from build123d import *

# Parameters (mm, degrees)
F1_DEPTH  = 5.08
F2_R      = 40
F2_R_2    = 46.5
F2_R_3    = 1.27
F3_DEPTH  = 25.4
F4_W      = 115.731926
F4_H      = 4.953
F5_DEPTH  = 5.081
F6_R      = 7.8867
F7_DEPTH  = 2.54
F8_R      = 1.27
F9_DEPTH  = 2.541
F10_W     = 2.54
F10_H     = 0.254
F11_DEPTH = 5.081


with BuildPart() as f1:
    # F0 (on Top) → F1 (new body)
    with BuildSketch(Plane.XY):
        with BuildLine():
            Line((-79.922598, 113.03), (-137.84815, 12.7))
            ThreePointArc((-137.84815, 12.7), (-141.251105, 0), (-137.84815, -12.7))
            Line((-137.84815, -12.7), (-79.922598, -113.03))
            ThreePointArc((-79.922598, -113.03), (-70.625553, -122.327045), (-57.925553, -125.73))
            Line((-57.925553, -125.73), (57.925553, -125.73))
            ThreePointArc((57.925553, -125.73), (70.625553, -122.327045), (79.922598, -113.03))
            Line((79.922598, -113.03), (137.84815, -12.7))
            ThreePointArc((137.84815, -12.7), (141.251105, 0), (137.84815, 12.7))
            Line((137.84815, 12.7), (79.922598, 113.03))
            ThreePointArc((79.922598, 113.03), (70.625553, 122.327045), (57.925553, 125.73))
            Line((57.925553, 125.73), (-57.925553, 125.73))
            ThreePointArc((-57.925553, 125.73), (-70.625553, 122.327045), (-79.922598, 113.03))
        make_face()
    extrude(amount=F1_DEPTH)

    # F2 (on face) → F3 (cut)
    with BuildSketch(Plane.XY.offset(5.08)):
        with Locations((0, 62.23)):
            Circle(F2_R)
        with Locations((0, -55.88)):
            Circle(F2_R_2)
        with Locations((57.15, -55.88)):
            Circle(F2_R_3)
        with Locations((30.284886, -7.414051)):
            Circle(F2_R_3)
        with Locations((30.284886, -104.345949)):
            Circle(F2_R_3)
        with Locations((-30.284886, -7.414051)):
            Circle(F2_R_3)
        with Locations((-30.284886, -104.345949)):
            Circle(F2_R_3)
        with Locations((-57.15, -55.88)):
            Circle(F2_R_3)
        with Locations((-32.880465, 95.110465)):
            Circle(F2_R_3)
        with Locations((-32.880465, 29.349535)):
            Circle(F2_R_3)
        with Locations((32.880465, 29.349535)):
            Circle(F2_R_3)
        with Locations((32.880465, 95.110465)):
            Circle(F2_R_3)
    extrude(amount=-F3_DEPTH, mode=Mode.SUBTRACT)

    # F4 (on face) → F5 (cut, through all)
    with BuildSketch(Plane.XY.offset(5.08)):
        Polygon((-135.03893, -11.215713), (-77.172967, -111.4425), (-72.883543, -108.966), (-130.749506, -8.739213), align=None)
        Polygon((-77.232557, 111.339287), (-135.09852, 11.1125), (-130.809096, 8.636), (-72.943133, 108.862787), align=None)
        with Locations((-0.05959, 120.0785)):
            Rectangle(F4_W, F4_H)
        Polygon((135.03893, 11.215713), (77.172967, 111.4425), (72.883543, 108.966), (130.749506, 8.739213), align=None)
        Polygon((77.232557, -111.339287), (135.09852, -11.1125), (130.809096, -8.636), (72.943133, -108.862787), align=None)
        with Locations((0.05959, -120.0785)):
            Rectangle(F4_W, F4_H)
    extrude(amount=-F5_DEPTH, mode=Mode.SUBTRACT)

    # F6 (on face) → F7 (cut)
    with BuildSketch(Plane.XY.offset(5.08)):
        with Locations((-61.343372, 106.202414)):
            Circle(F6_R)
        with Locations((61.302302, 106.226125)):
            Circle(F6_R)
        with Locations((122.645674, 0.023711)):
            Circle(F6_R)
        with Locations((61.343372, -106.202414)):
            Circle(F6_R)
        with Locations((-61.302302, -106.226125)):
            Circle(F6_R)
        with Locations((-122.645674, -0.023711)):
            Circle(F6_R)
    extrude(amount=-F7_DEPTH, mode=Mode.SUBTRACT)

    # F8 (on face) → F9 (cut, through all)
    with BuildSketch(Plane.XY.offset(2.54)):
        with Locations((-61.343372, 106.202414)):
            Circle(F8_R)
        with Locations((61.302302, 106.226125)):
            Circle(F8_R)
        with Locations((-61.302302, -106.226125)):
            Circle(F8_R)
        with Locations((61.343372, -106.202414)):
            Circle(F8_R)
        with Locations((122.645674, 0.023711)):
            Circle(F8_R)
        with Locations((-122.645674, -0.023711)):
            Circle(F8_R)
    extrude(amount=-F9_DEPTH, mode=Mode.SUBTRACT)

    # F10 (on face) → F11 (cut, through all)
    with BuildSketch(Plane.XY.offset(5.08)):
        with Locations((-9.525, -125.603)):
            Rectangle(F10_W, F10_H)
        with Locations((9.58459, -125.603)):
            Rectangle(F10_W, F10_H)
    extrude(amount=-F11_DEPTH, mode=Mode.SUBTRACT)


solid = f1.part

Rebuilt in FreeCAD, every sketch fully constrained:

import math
import FreeCAD as App
import Part
import Sketcher
Q = App.Units.Quantity


def add_polygon(sketch, points):
    """Adds a closed chain of lines whose ends are joined by coincident constraints."""
    first, n = sketch.GeometryCount, len(points)
    for a, b in zip(points, points[1:] + points[:1]):
        sketch.addGeometry(Part.LineSegment(App.Vector(*a, 0), App.Vector(*b, 0)), False)
    for i in range(n):
        sketch.addConstraint(Sketcher.Constraint("Coincident", first + i, 2, first + (i + 1) % n, 1))

doc = App.newDocument("Part")
body = doc.addObject("PartDesign::Body", "Body")

sketch1 = doc.addObject("Sketcher::SketchObject", "Sketch")
body.addObject(sketch1)
sketch1.AttachmentSupport = (doc.XY_Plane, [""])
sketch1.MapMode = "FlatFace"
sketch1.addGeometry(Part.LineSegment(App.Vector(-80, 113, 0), App.Vector(-138, 13, 0)), False)
sketch1.addGeometry(Part.ArcOfCircle(Part.Circle(App.Vector(-116, 0, 0), App.Vector(0, 0, 1), 25), math.radians(150), math.radians(210)), False)
sketch1.addGeometry(Part.LineSegment(App.Vector(-138, -13, 0), App.Vector(-80, -113, 0)), False)
sketch1.addGeometry(Part.ArcOfCircle(Part.Circle(App.Vector(-58, -100, 0), App.Vector(0, 0, 1), 25), math.radians(-150), math.radians(-90)), False)
sketch1.addGeometry(Part.LineSegment(App.Vector(-58, -126, 0), App.Vector(58, -126, 0)), False)
sketch1.addGeometry(Part.ArcOfCircle(Part.Circle(App.Vector(58, -100, 0), App.Vector(0, 0, 1), 25), math.radians(-90), math.radians(-30)), False)
sketch1.addGeometry(Part.LineSegment(App.Vector(80, -113, 0), App.Vector(138, -13, 0)), False)
sketch1.addGeometry(Part.ArcOfCircle(Part.Circle(App.Vector(116, 0, 0), App.Vector(0, 0, 1), 25), math.radians(-30), math.radians(30)), False)
sketch1.addGeometry(Part.LineSegment(App.Vector(138, 13, 0), App.Vector(80, 113, 0)), False)
sketch1.addGeometry(Part.ArcOfCircle(Part.Circle(App.Vector(58, 100, 0), App.Vector(0, 0, 1), 25), math.radians(30), math.radians(90)), False)
sketch1.addGeometry(Part.LineSegment(App.Vector(58, 126, 0), App.Vector(-58, 126, 0)), False)
sketch1.addGeometry(Part.ArcOfCircle(Part.Circle(App.Vector(-58, 100, 0), App.Vector(0, 0, 1), 25), math.radians(90), math.radians(150)), False)
sketch1.addConstraint(Sketcher.Constraint("Tangent", 0, 2, 1, 1))
sketch1.addConstraint(Sketcher.Constraint("Tangent", 1, 2, 2, 1))
sketch1.addConstraint(Sketcher.Constraint("Tangent", 2, 2, 3, 1))
sketch1.addConstraint(Sketcher.Constraint("Tangent", 3, 2, 4, 1))
sketch1.addConstraint(Sketcher.Constraint("Tangent", 4, 2, 5, 1))
sketch1.addConstraint(Sketcher.Constraint("Tangent", 5, 2, 6, 1))
sketch1.addConstraint(Sketcher.Constraint("Tangent", 6, 2, 7, 1))
sketch1.addConstraint(Sketcher.Constraint("Tangent", 7, 2, 8, 1))
sketch1.addConstraint(Sketcher.Constraint("Tangent", 8, 2, 9, 1))
sketch1.addConstraint(Sketcher.Constraint("Tangent", 9, 2, 10, 1))
sketch1.addConstraint(Sketcher.Constraint("Tangent", 10, 2, 11, 1))
sketch1.addConstraint(Sketcher.Constraint("Tangent", 11, 2, 0, 1))
sketch1.addConstraint(Sketcher.Constraint("Horizontal", 4))
sketch1.addConstraint(Sketcher.Constraint("Horizontal", 10))
sketch1.addConstraint(Sketcher.Constraint("Equal", 3, 5))
sketch1.addConstraint(Sketcher.Constraint("Equal", 1, 7))
sketch1.addConstraint(Sketcher.Constraint("Equal", 5, 9))
sketch1.addConstraint(Sketcher.Constraint("Equal", 9, 11))
sketch1.addConstraint(Sketcher.Constraint("Symmetric", 1, 3, 7, 3, -1, 1))
sketch1.addConstraint(Sketcher.Constraint("Symmetric", 3, 3, 9, 3, -1, 1))
sketch1.addConstraint(Sketcher.Constraint("Symmetric", 2, 2, 5, 2, -2))
sketch1.addConstraint(Sketcher.Constraint("Parallel", 0, 6))
sketch1.addConstraint(Sketcher.Constraint("Radius", 1, Q("0.9999999 in")))
sketch1.addConstraint(Sketcher.Constraint("Radius", 3, Q("1 in")))
sketch1.addConstraint(Sketcher.Constraint("Angle", 0, Q("-120 deg")))
sketch1.addConstraint(Sketcher.Constraint("DistanceY", 5, 3, 9, 3, Q("7.9 in")))
sketch1.addConstraint(Sketcher.Constraint("DistanceX", 4, 1, 4, 2, 115.851106))
pad1 = doc.addObject("PartDesign::Pad", "Pad")
body.addObject(pad1)
pad1.Profile = sketch1
pad1.Length = Q("0.2 in")

sketch2 = doc.addObject("Sketcher::SketchObject", "Sketch001")
body.addObject(sketch2)
sketch2.AttachmentSupport = (doc.XY_Plane, [""])
sketch2.MapMode = "FlatFace"
sketch2.AttachmentOffset = App.Placement(App.Vector(0, 0, 0.2 * 25.4), App.Rotation())
sketch2.addGeometry(Part.Circle(App.Vector(0, 62.2, 0), App.Vector(0, 0, 1), 40), False)
sketch2.addGeometry(Part.Circle(App.Vector(0, -55.9, 0), App.Vector(0, 0, 1), 46.5), False)
sketch2.addGeometry(Part.Circle(App.Vector(57.1, -55.9, 0), App.Vector(0, 0, 1), 1.3), False)
sketch2.addGeometry(Part.Circle(App.Vector(30.3, -7.4, 0), App.Vector(0, 0, 1), 1.3), False)
sketch2.addGeometry(Part.Circle(App.Vector(30.3, -104.3, 0), App.Vector(0, 0, 1), 1.3), False)
sketch2.addGeometry(Part.Circle(App.Vector(-30.3, -7.4, 0), App.Vector(0, 0, 1), 1.3), False)
sketch2.addGeometry(Part.Circle(App.Vector(-30.3, -104.3, 0), App.Vector(0, 0, 1), 1.3), False)
sketch2.addGeometry(Part.Circle(App.Vector(-57.1, -55.9, 0), App.Vector(0, 0, 1), 1.3), False)
sketch2.addGeometry(Part.Circle(App.Vector(-32.9, 95.1, 0), App.Vector(0, 0, 1), 1.3), False)
sketch2.addGeometry(Part.Circle(App.Vector(-32.9, 29.3, 0), App.Vector(0, 0, 1), 1.3), False)
sketch2.addGeometry(Part.Circle(App.Vector(32.9, 29.3, 0), App.Vector(0, 0, 1), 1.3), False)
sketch2.addGeometry(Part.Circle(App.Vector(32.9, 95.1, 0), App.Vector(0, 0, 1), 1.3), False)
sketch2.addConstraint(Sketcher.Constraint("Equal", 2, 3))
sketch2.addConstraint(Sketcher.Constraint("Equal", 3, 4))
sketch2.addConstraint(Sketcher.Constraint("Equal", 4, 5))
sketch2.addConstraint(Sketcher.Constraint("Equal", 5, 6))
sketch2.addConstraint(Sketcher.Constraint("Equal", 6, 7))
sketch2.addConstraint(Sketcher.Constraint("Equal", 7, 8))
sketch2.addConstraint(Sketcher.Constraint("Equal", 8, 9))
sketch2.addConstraint(Sketcher.Constraint("Equal", 9, 10))
sketch2.addConstraint(Sketcher.Constraint("Equal", 10, 11))
sketch2.addConstraint(Sketcher.Constraint("Symmetric", 3, 3, 5, 3, -2))
sketch2.addConstraint(Sketcher.Constraint("Symmetric", 4, 3, 6, 3, -2))
sketch2.addConstraint(Sketcher.Constraint("Symmetric", 2, 3, 7, 3, -2))
sketch2.addConstraint(Sketcher.Constraint("Symmetric", 9, 3, 10, 3, -2))
sketch2.addConstraint(Sketcher.Constraint("Symmetric", 8, 3, 11, 3, -2))
sketch2.addConstraint(Sketcher.Constraint("PointOnObject", 0, 3, -2))
sketch2.addConstraint(Sketcher.Constraint("PointOnObject", 1, 3, -2))
sketch2.addConstraint(Sketcher.Constraint("Horizontal", 1, 3, 2, 3))
sketch2.addConstraint(Sketcher.Constraint("Vertical", 3, 3, 4, 3))
sketch2.addConstraint(Sketcher.Constraint("Vertical", 8, 3, 9, 3))
sketch2.addConstraint(Sketcher.Constraint("Diameter", 2, Q("0.1 in")))
sketch2.addConstraint(Sketcher.Constraint("DistanceY", 1, 3, -1, 1, Q("2.2 in")))
sketch2.addConstraint(Sketcher.Constraint("Diameter", 0, 80.0))
sketch2.addConstraint(Sketcher.Constraint("Diameter", 1, 93.0))
sketch2.addConstraint(Sketcher.Constraint("DistanceY", -1, 1, 0, 3, Q("2.45 in")))
sketch2.addConstraint(Sketcher.Constraint("DistanceX", -1, 1, 2, 3, Q("2.25 in")))
sketch2.addConstraint(Sketcher.Constraint("DistanceY", 4, 3, 3, 3, 96.931898))
sketch2.addConstraint(Sketcher.Constraint("DistanceY", 3, 3, -1, 1, 7.414051))
sketch2.addConstraint(Sketcher.Constraint("DistanceX", 8, 3, 5, 3, 2.595579))
sketch2.addConstraint(Sketcher.Constraint("DistanceX", 8, 3, 3, 3, 63.165351))
sketch2.addConstraint(Sketcher.Constraint("DistanceY", 9, 3, 8, 3, 65.76093))
sketch2.addConstraint(Sketcher.Constraint("DistanceY", -1, 1, 8, 3, 95.110465))
pocket1 = doc.addObject("PartDesign::Pocket", "Pocket")
body.addObject(pocket1)
pocket1.Profile = sketch2
pocket1.Length = Q("1 in")

sketch3 = doc.addObject("Sketcher::SketchObject", "Sketch002")
body.addObject(sketch3)
sketch3.AttachmentSupport = (doc.XY_Plane, [""])
sketch3.MapMode = "FlatFace"
sketch3.AttachmentOffset = App.Placement(App.Vector(0, 0, 0.2 * 25.4), App.Rotation())
add_polygon(sketch3, [(-135, -11.2), (-77.2, -111.4), (-72.9, -109), (-130.7, -8.7)])
add_polygon(sketch3, [(-77.2, 111.3), (-135.1, 11.1), (-130.8, 8.6), (-72.9, 108.9)])
add_polygon(sketch3, [(-57.9, 122.6), (-57.9, 117.6), (57.8, 117.6), (57.8, 122.6)])
add_polygon(sketch3, [(135, 11.2), (77.2, 111.4), (72.9, 109), (130.7, 8.7)])
add_polygon(sketch3, [(77.2, -111.3), (135.1, -11.1), (130.8, -8.6), (72.9, -108.9)])
add_polygon(sketch3, [(-57.8, -117.6), (-57.8, -122.6), (57.9, -122.6), (57.9, -117.6)])
sketch3.addConstraint(Sketcher.Constraint("Vertical", 8))
sketch3.addConstraint(Sketcher.Constraint("Horizontal", 9))
sketch3.addConstraint(Sketcher.Constraint("Vertical", 10))
sketch3.addConstraint(Sketcher.Constraint("Horizontal", 11))
sketch3.addConstraint(Sketcher.Constraint("Vertical", 20))
sketch3.addConstraint(Sketcher.Constraint("Horizontal", 21))
sketch3.addConstraint(Sketcher.Constraint("Vertical", 22))
sketch3.addConstraint(Sketcher.Constraint("Horizontal", 23))
sketch3.addConstraint(Sketcher.Constraint("Symmetric", 0, 2, 12, 2, -1, 1))
sketch3.addConstraint(Sketcher.Constraint("Symmetric", 1, 2, 13, 2, -1, 1))
sketch3.addConstraint(Sketcher.Constraint("Symmetric", 2, 2, 14, 2, -1, 1))
sketch3.addConstraint(Sketcher.Constraint("Symmetric", 3, 2, 15, 2, -1, 1))
sketch3.addConstraint(Sketcher.Constraint("Symmetric", 4, 2, 16, 2, -1, 1))
sketch3.addConstraint(Sketcher.Constraint("Symmetric", 5, 2, 17, 2, -1, 1))
sketch3.addConstraint(Sketcher.Constraint("Symmetric", 6, 2, 18, 2, -1, 1))
sketch3.addConstraint(Sketcher.Constraint("Symmetric", 7, 2, 19, 2, -1, 1))
sketch3.addConstraint(Sketcher.Constraint("Symmetric", 10, 2, 20, 2, -1, 1))
sketch3.addConstraint(Sketcher.Constraint("Symmetric", 8, 2, 22, 2, -1, 1))
sketch3.addConstraint(Sketcher.Constraint("Perpendicular", 0, 1))
sketch3.addConstraint(Sketcher.Constraint("Perpendicular", 1, 2))
sketch3.addConstraint(Sketcher.Constraint("Perpendicular", 2, 3))
sketch3.addConstraint(Sketcher.Constraint("Perpendicular", 4, 5))
sketch3.addConstraint(Sketcher.Constraint("Perpendicular", 5, 6))
sketch3.addConstraint(Sketcher.Constraint("Perpendicular", 6, 7))
sketch3.addConstraint(Sketcher.Constraint("Equal", 2, 4))
sketch3.addConstraint(Sketcher.Constraint("Equal", 3, 5))
sketch3.addConstraint(Sketcher.Constraint("Angle", 0, Q("-60 deg")))
sketch3.addConstraint(Sketcher.Constraint("Angle", 4, Q("-120 deg")))
sketch3.addConstraint(Sketcher.Constraint("DistanceY", 8, 2, 8, 1, Q("0.195 in")))
sketch3.addConstraint(Sketcher.Constraint("DistanceY", 1, 2, -1, 1, Q("4.29 in")))
sketch3.addConstraint(Sketcher.Constraint("DistanceY", -1, 1, 5, 2, Q("0.34 in")))
sketch3.addConstraint(Sketcher.Constraint("DistanceY", -1, 1, 8, 2, Q("4.63 in")))
sketch3.addConstraint(Sketcher.Constraint("Distance", 1, Q("0.195 in")))
sketch3.addConstraint(Sketcher.Constraint("DistanceX", 6, 2, 12, 2, 150.1161))
sketch3.addConstraint(Sketcher.Constraint("DistanceX", 9, 1, 9, 2, 115.731926))
sketch3.addConstraint(Sketcher.Constraint("DistanceX", 3, 2, -1, 1, 135.03893))
sketch3.addConstraint(Sketcher.Constraint("DistanceX", 4, 2, -1, 1, 135.09852))
sketch3.addConstraint(Sketcher.Constraint("DistanceX", 6, 2, 8, 2, 15.01758))
pocket2 = doc.addObject("PartDesign::Pocket", "Pocket001")
body.addObject(pocket2)
pocket2.Profile = sketch3
pocket2.Type = "ThroughAll"

sketch4 = doc.addObject("Sketcher::SketchObject", "Sketch003")
body.addObject(sketch4)
sketch4.AttachmentSupport = (doc.XY_Plane, [""])
sketch4.MapMode = "FlatFace"
sketch4.AttachmentOffset = App.Placement(App.Vector(0, 0, 0.2 * 25.4), App.Rotation())
sketch4.addGeometry(Part.Circle(App.Vector(-61, 106, 0), App.Vector(0, 0, 1), 8), False)
sketch4.addGeometry(Part.Circle(App.Vector(61, 106, 0), App.Vector(0, 0, 1), 8), False)
sketch4.addGeometry(Part.Circle(App.Vector(123, 0, 0), App.Vector(0, 0, 1), 8), False)
sketch4.addGeometry(Part.Circle(App.Vector(61, -106, 0), App.Vector(0, 0, 1), 8), False)
sketch4.addGeometry(Part.Circle(App.Vector(-61, -106, 0), App.Vector(0, 0, 1), 8), False)
sketch4.addGeometry(Part.Circle(App.Vector(-123, 0, 0), App.Vector(0, 0, 1), 8), False)
sketch4.addConstraint(Sketcher.Constraint("Equal", 0, 1))
sketch4.addConstraint(Sketcher.Constraint("Equal", 1, 2))
sketch4.addConstraint(Sketcher.Constraint("Equal", 2, 3))
sketch4.addConstraint(Sketcher.Constraint("Equal", 3, 4))
sketch4.addConstraint(Sketcher.Constraint("Equal", 4, 5))
sketch4.addConstraint(Sketcher.Constraint("Symmetric", 0, 3, 3, 3, -1, 1))
sketch4.addConstraint(Sketcher.Constraint("Symmetric", 1, 3, 4, 3, -1, 1))
sketch4.addConstraint(Sketcher.Constraint("Symmetric", 2, 3, 5, 3, -1, 1))
sketch4.addConstraint(Sketcher.Constraint("Diameter", 0, Q("0.621 in")))
sketch4.addConstraint(Sketcher.Constraint("DistanceX", -1, 1, 1, 3, 61.302302))
sketch4.addConstraint(Sketcher.Constraint("DistanceX", 3, 3, 2, 3, 61.302302))
sketch4.addConstraint(Sketcher.Constraint("DistanceY", -1, 1, 2, 3, 0.023711))
sketch4.addConstraint(Sketcher.Constraint("DistanceY", 0, 3, 1, 3, 0.023711))
sketch4.addConstraint(Sketcher.Constraint("DistanceX", 1, 3, 3, 3, 0.04107))
sketch4.addConstraint(Sketcher.Constraint("DistanceY", 3, 3, 1, 3, 212.428539))
pocket3 = doc.addObject("PartDesign::Pocket", "Pocket002")
body.addObject(pocket3)
pocket3.Profile = sketch4
pocket3.Length = Q("0.1 in")

sketch5 = doc.addObject("Sketcher::SketchObject", "Sketch004")
body.addObject(sketch5)
sketch5.AttachmentSupport = (doc.XY_Plane, [""])
sketch5.MapMode = "FlatFace"
sketch5.AttachmentOffset = App.Placement(App.Vector(0, 0, 0.1 * 25.4), App.Rotation())
sketch5.addGeometry(Part.Circle(App.Vector(-61.3, 106.2, 0), App.Vector(0, 0, 1), 1.3), False)
sketch5.addGeometry(Part.Circle(App.Vector(61.3, 106.2, 0), App.Vector(0, 0, 1), 1.3), False)
sketch5.addGeometry(Part.Circle(App.Vector(-61.3, -106.2, 0), App.Vector(0, 0, 1), 1.3), False)
sketch5.addGeometry(Part.Circle(App.Vector(61.3, -106.2, 0), App.Vector(0, 0, 1), 1.3), False)
sketch5.addGeometry(Part.Circle(App.Vector(122.6, 0, 0), App.Vector(0, 0, 1), 1.3), False)
sketch5.addGeometry(Part.Circle(App.Vector(-122.6, 0, 0), App.Vector(0, 0, 1), 1.3), False)
sketch5.addConstraint(Sketcher.Constraint("Equal", 0, 1))
sketch5.addConstraint(Sketcher.Constraint("Equal", 1, 2))
sketch5.addConstraint(Sketcher.Constraint("Equal", 2, 3))
sketch5.addConstraint(Sketcher.Constraint("Equal", 3, 4))
sketch5.addConstraint(Sketcher.Constraint("Equal", 4, 5))
sketch5.addConstraint(Sketcher.Constraint("Symmetric", 1, 3, 2, 3, -1, 1))
sketch5.addConstraint(Sketcher.Constraint("Symmetric", 0, 3, 3, 3, -1, 1))
sketch5.addConstraint(Sketcher.Constraint("Symmetric", 4, 3, 5, 3, -1, 1))
sketch5.addConstraint(Sketcher.Constraint("Diameter", 0, Q("0.1 in")))
sketch5.addConstraint(Sketcher.Constraint("DistanceX", -1, 1, 1, 3, 61.302302))
sketch5.addConstraint(Sketcher.Constraint("DistanceX", 3, 3, 4, 3, 61.302302))
sketch5.addConstraint(Sketcher.Constraint("DistanceY", -1, 1, 4, 3, 0.023711))
sketch5.addConstraint(Sketcher.Constraint("DistanceY", 0, 3, 1, 3, 0.023711))
sketch5.addConstraint(Sketcher.Constraint("DistanceX", 0, 3, 2, 3, 0.04107))
sketch5.addConstraint(Sketcher.Constraint("DistanceY", 2, 3, 0, 3, 212.428539))
pocket4 = doc.addObject("PartDesign::Pocket", "Pocket003")
body.addObject(pocket4)
pocket4.Profile = sketch5
pocket4.Type = "ThroughAll"

sketch6 = doc.addObject("Sketcher::SketchObject", "Sketch005")
body.addObject(sketch6)
sketch6.AttachmentSupport = (doc.XY_Plane, [""])
sketch6.MapMode = "FlatFace"
sketch6.AttachmentOffset = App.Placement(App.Vector(0, 0, 0.2 * 25.4), App.Rotation())
add_polygon(sketch6, [(-10.79, -125.48), (-10.79, -125.73), (-8.26, -125.73), (-8.26, -125.48)])
add_polygon(sketch6, [(8.31, -125.48), (8.31, -125.73), (10.85, -125.73), (10.85, -125.48)])
sketch6.addConstraint(Sketcher.Constraint("Vertical", 0))
sketch6.addConstraint(Sketcher.Constraint("Horizontal", 1))
sketch6.addConstraint(Sketcher.Constraint("Vertical", 2))
sketch6.addConstraint(Sketcher.Constraint("Horizontal", 3))
sketch6.addConstraint(Sketcher.Constraint("Vertical", 4))
sketch6.addConstraint(Sketcher.Constraint("Horizontal", 5))
sketch6.addConstraint(Sketcher.Constraint("Vertical", 6))
sketch6.addConstraint(Sketcher.Constraint("Horizontal", 7))
sketch6.addConstraint(Sketcher.Constraint("Horizontal", 1, 2, 4, 2))
sketch6.addConstraint(Sketcher.Constraint("Horizontal", 3, 2, 6, 2))
sketch6.addConstraint(Sketcher.Constraint("Equal", 3, 5))
sketch6.addConstraint(Sketcher.Constraint("DistanceX", 1, 1, 1, 2, Q("0.1 in")))
sketch6.addConstraint(Sketcher.Constraint("DistanceY", 0, 2, 0, 1, Q("0.01 in")))
sketch6.addConstraint(Sketcher.Constraint("DistanceY", 0, 2, -1, 1, Q("4.95 in")))
sketch6.addConstraint(Sketcher.Constraint("DistanceX", 0, 2, -1, 1, Q("0.425 in")))
sketch6.addConstraint(Sketcher.Constraint("DistanceX", -1, 1, 4, 2, 8.31459))
pocket5 = doc.addObject("PartDesign::Pocket", "Pocket004")
body.addObject(pocket5)
pocket5.Profile = sketch6
pocket5.Type = "ThroughAll"

doc.recompute()
